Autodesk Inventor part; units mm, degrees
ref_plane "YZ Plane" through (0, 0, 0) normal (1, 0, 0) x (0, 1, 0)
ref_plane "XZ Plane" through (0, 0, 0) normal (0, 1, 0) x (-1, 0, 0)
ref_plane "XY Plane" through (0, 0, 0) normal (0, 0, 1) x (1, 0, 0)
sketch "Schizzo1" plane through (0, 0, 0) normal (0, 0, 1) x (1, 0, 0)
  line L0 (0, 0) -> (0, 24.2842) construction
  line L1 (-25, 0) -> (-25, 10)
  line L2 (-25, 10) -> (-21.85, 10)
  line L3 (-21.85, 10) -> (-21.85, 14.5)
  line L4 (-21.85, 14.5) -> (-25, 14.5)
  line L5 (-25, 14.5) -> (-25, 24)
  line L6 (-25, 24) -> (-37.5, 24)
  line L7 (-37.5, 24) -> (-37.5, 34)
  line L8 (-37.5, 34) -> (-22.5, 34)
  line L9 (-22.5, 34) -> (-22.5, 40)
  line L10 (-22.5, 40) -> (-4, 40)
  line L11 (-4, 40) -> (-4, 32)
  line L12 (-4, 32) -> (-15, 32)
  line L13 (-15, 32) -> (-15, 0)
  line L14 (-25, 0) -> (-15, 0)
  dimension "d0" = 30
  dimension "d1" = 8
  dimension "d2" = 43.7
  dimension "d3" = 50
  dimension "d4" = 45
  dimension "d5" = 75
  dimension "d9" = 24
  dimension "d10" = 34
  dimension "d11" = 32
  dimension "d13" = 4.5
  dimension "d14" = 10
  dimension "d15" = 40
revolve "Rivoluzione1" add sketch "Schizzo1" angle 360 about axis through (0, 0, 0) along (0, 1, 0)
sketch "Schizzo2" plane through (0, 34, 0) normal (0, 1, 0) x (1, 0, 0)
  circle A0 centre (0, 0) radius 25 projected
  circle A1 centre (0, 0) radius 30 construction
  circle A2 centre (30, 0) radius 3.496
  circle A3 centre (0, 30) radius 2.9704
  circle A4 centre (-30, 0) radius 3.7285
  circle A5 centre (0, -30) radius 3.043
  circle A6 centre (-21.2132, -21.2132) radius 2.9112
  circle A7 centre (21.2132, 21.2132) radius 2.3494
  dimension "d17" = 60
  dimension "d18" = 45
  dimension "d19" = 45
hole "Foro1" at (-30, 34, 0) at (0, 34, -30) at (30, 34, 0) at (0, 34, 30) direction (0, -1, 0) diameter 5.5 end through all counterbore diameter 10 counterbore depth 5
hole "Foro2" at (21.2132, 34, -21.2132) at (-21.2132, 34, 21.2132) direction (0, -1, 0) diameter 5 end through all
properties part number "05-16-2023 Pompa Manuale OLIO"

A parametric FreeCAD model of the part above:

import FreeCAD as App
import Part
import Sketcher
from FreeCAD import Vector
Q = App.Units.Quantity

doc = App.newDocument("Part")
body = doc.addObject("PartDesign::Body", "Body")

# Sketch on XY plane
sketch1 = doc.addObject("Sketcher::SketchObject", "Sketch")
body.addObject(sketch1)
sketch1.AttachmentSupport = (doc.XY_Plane, [""])
sketch1.MapMode = "FlatFace"
sketch1.addGeometry([
    Part.LineSegment(Vector(-25, 10, 0), Vector(-25, 0, 0)),  # 0
    Part.LineSegment(Vector(-25, 0, 0), Vector(-15, 0, 0)),  # 1
    Part.LineSegment(Vector(-15, 0, 0), Vector(-15, 32, 0)),  # 2
    Part.LineSegment(Vector(-15, 32, 0), Vector(-4, 32, 0)),  # 3
    Part.LineSegment(Vector(-4, 32, 0), Vector(-4, 40, 0)),  # 4
    Part.LineSegment(Vector(-4, 40, 0), Vector(-22.5, 40, 0)),  # 5
    Part.LineSegment(Vector(-22.5, 40, 0), Vector(-22.5, 34, 0)),  # 6
    Part.LineSegment(Vector(-22.5, 34, 0), Vector(-37.5, 34, 0)),  # 7
    Part.LineSegment(Vector(-37.5, 34, 0), Vector(-37.5, 24, 0)),  # 8
    Part.LineSegment(Vector(-37.5, 24, 0), Vector(-25, 24, 0)),  # 9
    Part.LineSegment(Vector(-25, 24, 0), Vector(-25, 14.5, 0)),  # 10
    Part.LineSegment(Vector(-25, 14.5, 0), Vector(-21.9, 14.5, 0)),  # 11
    Part.LineSegment(Vector(-21.9, 14.5, 0), Vector(-21.9, 10, 0)),  # 12
    Part.LineSegment(Vector(-21.9, 10, 0), Vector(-25, 10, 0)),  # 13
], False)
sketch1.addConstraint([
    Sketcher.Constraint("Coincident", 0, 2, 1, 1),
    Sketcher.Constraint("Coincident", 1, 2, 2, 1),
    Sketcher.Constraint("Coincident", 2, 2, 3, 1),
    Sketcher.Constraint("Coincident", 3, 2, 4, 1),
    Sketcher.Constraint("Coincident", 4, 2, 5, 1),
    Sketcher.Constraint("Coincident", 5, 2, 6, 1),
    Sketcher.Constraint("Coincident", 6, 2, 7, 1),
    Sketcher.Constraint("Coincident", 7, 2, 8, 1),
    Sketcher.Constraint("Coincident", 8, 2, 9, 1),
    Sketcher.Constraint("Coincident", 9, 2, 10, 1),
    Sketcher.Constraint("Coincident", 10, 2, 11, 1),
    Sketcher.Constraint("Coincident", 11, 2, 12, 1),
    Sketcher.Constraint("Coincident", 12, 2, 13, 1),
    Sketcher.Constraint("Coincident", 13, 2, 0, 1),
    Sketcher.Constraint("Vertical", 0),
    Sketcher.Constraint("Horizontal", 1),
    Sketcher.Constraint("Vertical", 2),
    Sketcher.Constraint("Horizontal", 3),
    Sketcher.Constraint("Vertical", 4),
    Sketcher.Constraint("Horizontal", 5),
    Sketcher.Constraint("Vertical", 6),
    Sketcher.Constraint("Horizontal", 7),
    Sketcher.Constraint("Vertical", 8),
    Sketcher.Constraint("Horizontal", 9),
    Sketcher.Constraint("Vertical", 10),
    Sketcher.Constraint("Horizontal", 11),
    Sketcher.Constraint("Vertical", 12),
    Sketcher.Constraint("Horizontal", 13),
    Sketcher.Constraint("PointOnObject", 0, 2, -1),
    Sketcher.Constraint("Vertical", 0, 2, 9, 2),
    Sketcher.Constraint("Equal", 1, 0),
    Sketcher.Constraint("Equal", 0, 8),
    Sketcher.Constraint("DistanceX", 1, 1, 1, 2, Q("10 mm")),
    Sketcher.Constraint("DistanceY", 2, 1, 2, 2, Q("32 mm")),
    Sketcher.Constraint("DistanceY", 4, 1, 4, 2, Q("8 mm")),
    Sketcher.Constraint("DistanceY", 12, 2, 12, 1, Q("4.5 mm")),
    Sketcher.Constraint("DistanceY", -1, 1, 6, 2, Q("34 mm")),
    Sketcher.Constraint("DistanceX", 3, 1, 3, 2, Q("11 mm")),
    Sketcher.Constraint("DistanceX", 7, 2, 7, 1, Q("15 mm")),
    Sketcher.Constraint("DistanceX", 5, 2, 5, 1, Q("18.5 mm")),
    Sketcher.Constraint("DistanceX", 0, 2, -1, 1, Q("25 mm")),
    Sketcher.Constraint("DistanceX", 11, 1, 11, 2, Q("3.15 mm")),
])
revolution = doc.addObject("PartDesign::Revolution", "Revolution")
body.addObject(revolution)
revolution.Profile = sketch1
revolution.ReferenceAxis = (sketch1, ["V_Axis"])
revolution.Angle = 360

# Sketch on XZ plane
sketch2 = doc.addObject("Sketcher::SketchObject", "Sketch001")
body.addObject(sketch2)
sketch2.AttachmentSupport = (doc.XZ_Plane, [""])
sketch2.MapMode = "FlatFace"
sketch2.AttachmentOffset = App.Placement(Vector(0, 0, -34), App.Rotation())
sketch2.addGeometry([
    Part.Circle(Vector(-30, 0, 0), Vector(0, 0, 1), 2.8),
    Part.Circle(Vector(0, -30, 0), Vector(0, 0, 1), 2.8),
    Part.Circle(Vector(30, 0, 0), Vector(0, 0, 1), 2.8),
    Part.Circle(Vector(0, 30, 0), Vector(0, 0, 1), 2.8),
], False)
sketch2.addConstraint([
    Sketcher.Constraint("Equal", 0, 1),
    Sketcher.Constraint("Equal", 1, 2),
    Sketcher.Constraint("Equal", 2, 3),
    Sketcher.Constraint("Symmetric", 0, 3, 2, 3, -1, 1),
    Sketcher.Constraint("Symmetric", 1, 3, 3, 3, -1, 1),
    Sketcher.Constraint("PointOnObject", 0, 3, -1),
    Sketcher.Constraint("PointOnObject", 1, 3, -2),
    Sketcher.Constraint("Diameter", 0, Q("5.5 mm")),
    Sketcher.Constraint("DistanceX", 0, 3, -1, 1, Q("30 mm")),
    Sketcher.Constraint("DistanceY", 1, 3, -1, 1, Q("30 mm")),
])
doc.recompute()
hole = doc.addObject("PartDesign::Hole", "Hole")
body.addObject(hole)
hole.Profile = sketch2
hole.ThreadType = "None"
hole.Diameter = 5.5
hole.DepthType = "ThroughAll"
hole.HoleCutType = "Counterbore"
hole.HoleCutDiameter = 10
hole.HoleCutDepth = 5
hole.Reversed = True

# Sketch on XZ plane
sketch3 = doc.addObject("Sketcher::SketchObject", "Sketch002")
body.addObject(sketch3)
sketch3.AttachmentSupport = (doc.XZ_Plane, [""])
sketch3.MapMode = "FlatFace"
sketch3.AttachmentOffset = App.Placement(Vector(0, 0, -34), App.Rotation())
sketch3.addGeometry([
    Part.Circle(Vector(21.2, -21.2, 0), Vector(0, 0, 1), 2.5),
    Part.Circle(Vector(-21.2, 21.2, 0), Vector(0, 0, 1), 2.5),
], False)
sketch3.addConstraint([
    Sketcher.Constraint("Equal", 0, 1),
    Sketcher.Constraint("Symmetric", 0, 3, 1, 3, -1, 1),
    Sketcher.Constraint("Diameter", 0, Q("5 mm")),
    Sketcher.Constraint("DistanceX", -1, 1, 0, 3, Q("21.2132 mm")),
    Sketcher.Constraint("DistanceY", 0, 3, -1, 1, Q("21.2132 mm")),
])
doc.recompute()
hole2 = doc.addObject("PartDesign::Hole", "Hole001")
body.addObject(hole2)
hole2.Profile = sketch3
hole2.ThreadType = "None"
hole2.Diameter = 5
hole2.DepthType = "ThroughAll"
hole2.Reversed = True

doc.recompute()
